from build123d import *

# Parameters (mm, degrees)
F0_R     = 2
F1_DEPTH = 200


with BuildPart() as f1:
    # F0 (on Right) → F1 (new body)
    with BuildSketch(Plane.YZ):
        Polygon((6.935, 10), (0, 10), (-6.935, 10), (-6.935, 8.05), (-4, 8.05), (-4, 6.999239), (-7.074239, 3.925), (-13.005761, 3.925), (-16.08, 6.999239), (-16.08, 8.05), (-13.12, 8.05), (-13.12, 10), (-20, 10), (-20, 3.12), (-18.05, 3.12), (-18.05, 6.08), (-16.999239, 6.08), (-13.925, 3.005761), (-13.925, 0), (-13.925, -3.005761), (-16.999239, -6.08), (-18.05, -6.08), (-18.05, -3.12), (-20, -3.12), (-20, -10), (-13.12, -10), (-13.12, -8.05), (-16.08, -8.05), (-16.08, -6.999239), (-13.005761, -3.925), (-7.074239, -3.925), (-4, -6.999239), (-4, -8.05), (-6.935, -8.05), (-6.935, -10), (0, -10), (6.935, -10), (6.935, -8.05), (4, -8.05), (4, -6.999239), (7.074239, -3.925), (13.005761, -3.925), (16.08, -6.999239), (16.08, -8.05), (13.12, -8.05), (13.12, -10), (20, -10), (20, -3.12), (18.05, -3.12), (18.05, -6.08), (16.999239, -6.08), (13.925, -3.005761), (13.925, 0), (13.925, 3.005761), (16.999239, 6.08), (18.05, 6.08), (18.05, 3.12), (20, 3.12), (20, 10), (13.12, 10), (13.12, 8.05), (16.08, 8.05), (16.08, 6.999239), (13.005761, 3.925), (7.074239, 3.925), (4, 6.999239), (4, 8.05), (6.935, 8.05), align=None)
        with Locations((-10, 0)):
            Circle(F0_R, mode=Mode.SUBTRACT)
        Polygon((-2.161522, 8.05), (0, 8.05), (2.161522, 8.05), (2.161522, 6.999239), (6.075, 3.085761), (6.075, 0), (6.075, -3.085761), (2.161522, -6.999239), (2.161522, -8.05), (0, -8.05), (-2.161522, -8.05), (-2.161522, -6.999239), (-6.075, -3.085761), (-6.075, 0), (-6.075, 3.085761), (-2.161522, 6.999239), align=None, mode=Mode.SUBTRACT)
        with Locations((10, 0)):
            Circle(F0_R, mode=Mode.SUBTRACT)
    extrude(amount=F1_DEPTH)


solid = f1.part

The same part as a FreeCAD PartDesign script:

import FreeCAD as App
import Part
import Sketcher

doc = App.newDocument("Part")
params = doc.addObject("Spreadsheet::Sheet", "Params")
for row, (alias, value) in enumerate([
    ("sketch1_diameter", "4 mm"),
    ("sketch1_width", "13.87 mm"),
    ("sketch1_width2", "2.96 mm"),
    ("sketch1_width3", "6.88 mm"),
    ("sketch1_width4", "1.95 mm"),
    ("pad1_length", "200 mm"),
], start=1):
    params.set(f"A{row}", alias)
    params.set(f"B{row}", "=" + value)
    params.setAlias(f"B{row}", alias)

body = doc.addObject("PartDesign::Body", "Body")

sketch1 = body.newObject("Sketcher::SketchObject", "Sketch")
sketch1.AttachmentSupport = (doc.getObject("YZ_Plane"), [""])
sketch1.MapMode = "FlatFace"
sketch1.addGeometry([
    Part.LineSegment(App.Vector(6.9, 10, 0), App.Vector(-6.9, 10, 0)),
    Part.LineSegment(App.Vector(-6.9, 10, 0), App.Vector(-6.9, 8.1, 0)),
    Part.LineSegment(App.Vector(-6.9, 8.1, 0), App.Vector(-4, 8.1, 0)),
    Part.LineSegment(App.Vector(-4, 8.1, 0), App.Vector(-4, 7, 0)),
    Part.LineSegment(App.Vector(-4, 7, 0), App.Vector(-7.1, 3.9, 0)),
    Part.LineSegment(App.Vector(-7.1, 3.9, 0), App.Vector(-13, 3.9, 0)),
    Part.LineSegment(App.Vector(-13, 3.9, 0), App.Vector(-16.1, 7, 0)),
    Part.LineSegment(App.Vector(-16.1, 7, 0), App.Vector(-16.1, 8.1, 0)),
    Part.LineSegment(App.Vector(-16.1, 8.1, 0), App.Vector(-13.1, 8.1, 0)),
    Part.LineSegment(App.Vector(-13.1, 8.1, 0), App.Vector(-13.1, 10, 0)),
    Part.LineSegment(App.Vector(-13.1, 10, 0), App.Vector(-20, 10, 0)),
    Part.LineSegment(App.Vector(-20, 10, 0), App.Vector(-20, 3.1, 0)),
    Part.LineSegment(App.Vector(-20, 3.1, 0), App.Vector(-18.1, 3.1, 0)),
    Part.LineSegment(App.Vector(-18.1, 3.1, 0), App.Vector(-18.1, 6.1, 0)),
    Part.LineSegment(App.Vector(-18.1, 6.1, 0), App.Vector(-17, 6.1, 0)),
    Part.LineSegment(App.Vector(-17, 6.1, 0), App.Vector(-13.9, 3, 0)),
    Part.LineSegment(App.Vector(-13.9, 3, 0), App.Vector(-13.9, -3, 0)),
    Part.LineSegment(App.Vector(-13.9, -3, 0), App.Vector(-17, -6.1, 0)),
    Part.LineSegment(App.Vector(-17, -6.1, 0), App.Vector(-18.1, -6.1, 0)),
    Part.LineSegment(App.Vector(-18.1, -6.1, 0), App.Vector(-18.1, -3.1, 0)),
    Part.LineSegment(App.Vector(-18.1, -3.1, 0), App.Vector(-20, -3.1, 0)),
    Part.LineSegment(App.Vector(-20, -3.1, 0), App.Vector(-20, -10, 0)),
    Part.LineSegment(App.Vector(-20, -10, 0), App.Vector(-13.1, -10, 0)),
    Part.LineSegment(App.Vector(-13.1, -10, 0), App.Vector(-13.1, -8.1, 0)),
    Part.LineSegment(App.Vector(-13.1, -8.1, 0), App.Vector(-16.1, -8.1, 0)),
    Part.LineSegment(App.Vector(-16.1, -8.1, 0), App.Vector(-16.1, -7, 0)),
    Part.LineSegment(App.Vector(-16.1, -7, 0), App.Vector(-13, -3.9, 0)),
    Part.LineSegment(App.Vector(-13, -3.9, 0), App.Vector(-7.1, -3.9, 0)),
    Part.LineSegment(App.Vector(-7.1, -3.9, 0), App.Vector(-4, -7, 0)),
    Part.LineSegment(App.Vector(-4, -7, 0), App.Vector(-4, -8.1, 0)),
    Part.LineSegment(App.Vector(-4, -8.1, 0), App.Vector(-6.9, -8.1, 0)),
    Part.LineSegment(App.Vector(-6.9, -8.1, 0), App.Vector(-6.9, -10, 0)),
    Part.LineSegment(App.Vector(-6.9, -10, 0), App.Vector(6.9, -10, 0)),
    Part.LineSegment(App.Vector(6.9, -10, 0), App.Vector(6.9, -8.1, 0)),
    Part.LineSegment(App.Vector(6.9, -8.1, 0), App.Vector(4, -8.1, 0)),
    Part.LineSegment(App.Vector(4, -8.1, 0), App.Vector(4, -7, 0)),
    Part.LineSegment(App.Vector(4, -7, 0), App.Vector(7.1, -3.9, 0)),
    Part.LineSegment(App.Vector(7.1, -3.9, 0), App.Vector(13, -3.9, 0)),
    Part.LineSegment(App.Vector(13, -3.9, 0), App.Vector(16.1, -7, 0)),
    Part.LineSegment(App.Vector(16.1, -7, 0), App.Vector(16.1, -8.1, 0)),
    Part.LineSegment(App.Vector(16.1, -8.1, 0), App.Vector(13.1, -8.1, 0)),
    Part.LineSegment(App.Vector(13.1, -8.1, 0), App.Vector(13.1, -10, 0)),
    Part.LineSegment(App.Vector(13.1, -10, 0), App.Vector(20, -10, 0)),
    Part.LineSegment(App.Vector(20, -10, 0), App.Vector(20, -3.1, 0)),
    Part.LineSegment(App.Vector(20, -3.1, 0), App.Vector(18.1, -3.1, 0)),
    Part.LineSegment(App.Vector(18.1, -3.1, 0), App.Vector(18.1, -6.1, 0)),
    Part.LineSegment(App.Vector(18.1, -6.1, 0), App.Vector(17, -6.1, 0)),
    Part.LineSegment(App.Vector(17, -6.1, 0), App.Vector(13.9, -3, 0)),
    Part.LineSegment(App.Vector(13.9, -3, 0), App.Vector(13.9, 3, 0)),
    Part.LineSegment(App.Vector(13.9, 3, 0), App.Vector(17, 6.1, 0)),
    Part.LineSegment(App.Vector(17, 6.1, 0), App.Vector(18.1, 6.1, 0)),
    Part.LineSegment(App.Vector(18.1, 6.1, 0), App.Vector(18.1, 3.1, 0)),
    Part.LineSegment(App.Vector(18.1, 3.1, 0), App.Vector(20, 3.1, 0)),
    Part.LineSegment(App.Vector(20, 3.1, 0), App.Vector(20, 10, 0)),
    Part.LineSegment(App.Vector(20, 10, 0), App.Vector(13.1, 10, 0)),
    Part.LineSegment(App.Vector(13.1, 10, 0), App.Vector(13.1, 8.1, 0)),
    Part.LineSegment(App.Vector(13.1, 8.1, 0), App.Vector(16.1, 8.1, 0)),
    Part.LineSegment(App.Vector(16.1, 8.1, 0), App.Vector(16.1, 7, 0)),
    Part.LineSegment(App.Vector(16.1, 7, 0), App.Vector(13, 3.9, 0)),
    Part.LineSegment(App.Vector(13, 3.9, 0), App.Vector(7.1, 3.9, 0)),
    Part.LineSegment(App.Vector(7.1, 3.9, 0), App.Vector(4, 7, 0)),
    Part.LineSegment(App.Vector(4, 7, 0), App.Vector(4, 8.1, 0)),
    Part.LineSegment(App.Vector(4, 8.1, 0), App.Vector(6.9, 8.1, 0)),
    Part.LineSegment(App.Vector(6.9, 8.1, 0), App.Vector(6.9, 10, 0)),
    Part.Circle(App.Vector(-10, 0, 0), App.Vector(0, 0, 1), 2),
    Part.LineSegment(App.Vector(-2.2, 7, 0), App.Vector(-2.2, 8.1, 0)),
    Part.LineSegment(App.Vector(-2.2, 8.1, 0), App.Vector(2.2, 8.1, 0)),
    Part.LineSegment(App.Vector(2.2, 8.1, 0), App.Vector(2.2, 7, 0)),
    Part.LineSegment(App.Vector(2.2, 7, 0), App.Vector(6.1, 3.1, 0)),
    Part.LineSegment(App.Vector(6.1, 3.1, 0), App.Vector(6.1, -3.1, 0)),
    Part.LineSegment(App.Vector(6.1, -3.1, 0), App.Vector(2.2, -7, 0)),
    Part.LineSegment(App.Vector(2.2, -7, 0), App.Vector(2.2, -8.1, 0)),
    Part.LineSegment(App.Vector(2.2, -8.1, 0), App.Vector(-2.2, -8.1, 0)),
    Part.LineSegment(App.Vector(-2.2, -8.1, 0), App.Vector(-2.2, -7, 0)),
    Part.LineSegment(App.Vector(-2.2, -7, 0), App.Vector(-6.1, -3.1, 0)),
    Part.LineSegment(App.Vector(-6.1, -3.1, 0), App.Vector(-6.1, 3.1, 0)),
    Part.LineSegment(App.Vector(-6.1, 3.1, 0), App.Vector(-2.2, 7, 0)),
    Part.Circle(App.Vector(10, 0, 0), App.Vector(0, 0, 1), 2),
], False)
sketch1.addConstraint([
    Sketcher.Constraint("Coincident", 0, 2, 1, 1),
    Sketcher.Constraint("Coincident", 1, 2, 2, 1),
    Sketcher.Constraint("Coincident", 2, 2, 3, 1),
    Sketcher.Constraint("Coincident", 3, 2, 4, 1),
    Sketcher.Constraint("Coincident", 4, 2, 5, 1),
    Sketcher.Constraint("Coincident", 5, 2, 6, 1),
    Sketcher.Constraint("Coincident", 6, 2, 7, 1),
    Sketcher.Constraint("Coincident", 7, 2, 8, 1),
    Sketcher.Constraint("Coincident", 8, 2, 9, 1),
    Sketcher.Constraint("Coincident", 9, 2, 10, 1),
    Sketcher.Constraint("Coincident", 10, 2, 11, 1),
    Sketcher.Constraint("Coincident", 11, 2, 12, 1),
    Sketcher.Constraint("Coincident", 12, 2, 13, 1),
    Sketcher.Constraint("Coincident", 13, 2, 14, 1),
    Sketcher.Constraint("Coincident", 14, 2, 15, 1),
    Sketcher.Constraint("Coincident", 15, 2, 16, 1),
    Sketcher.Constraint("Coincident", 16, 2, 17, 1),
    Sketcher.Constraint("Coincident", 17, 2, 18, 1),
    Sketcher.Constraint("Coincident", 18, 2, 19, 1),
    Sketcher.Constraint("Coincident", 19, 2, 20, 1),
    Sketcher.Constraint("Coincident", 20, 2, 21, 1),
    Sketcher.Constraint("Coincident", 21, 2, 22, 1),
    Sketcher.Constraint("Coincident", 22, 2, 23, 1),
    Sketcher.Constraint("Coincident", 23, 2, 24, 1),
    Sketcher.Constraint("Coincident", 24, 2, 25, 1),
    Sketcher.Constraint("Coincident", 25, 2, 26, 1),
    Sketcher.Constraint("Coincident", 26, 2, 27, 1),
    Sketcher.Constraint("Coincident", 27, 2, 28, 1),
    Sketcher.Constraint("Coincident", 28, 2, 29, 1),
    Sketcher.Constraint("Coincident", 29, 2, 30, 1),
    Sketcher.Constraint("Coincident", 30, 2, 31, 1),
    Sketcher.Constraint("Coincident", 31, 2, 32, 1),
    Sketcher.Constraint("Coincident", 32, 2, 33, 1),
    Sketcher.Constraint("Coincident", 33, 2, 34, 1),
    Sketcher.Constraint("Coincident", 34, 2, 35, 1),
    Sketcher.Constraint("Coincident", 35, 2, 36, 1),
    Sketcher.Constraint("Coincident", 36, 2, 37, 1),
    Sketcher.Constraint("Coincident", 37, 2, 38, 1),
    Sketcher.Constraint("Coincident", 38, 2, 39, 1),
    Sketcher.Constraint("Coincident", 39, 2, 40, 1),
    Sketcher.Constraint("Coincident", 40, 2, 41, 1),
    Sketcher.Constraint("Coincident", 41, 2, 42, 1),
    Sketcher.Constraint("Coincident", 42, 2, 43, 1),
    Sketcher.Constraint("Coincident", 43, 2, 44, 1),
    Sketcher.Constraint("Coincident", 44, 2, 45, 1),
    Sketcher.Constraint("Coincident", 45, 2, 46, 1),
    Sketcher.Constraint("Coincident", 46, 2, 47, 1),
    Sketcher.Constraint("Coincident", 47, 2, 48, 1),
    Sketcher.Constraint("Coincident", 48, 2, 49, 1),
    Sketcher.Constraint("Coincident", 49, 2, 50, 1),
    Sketcher.Constraint("Coincident", 50, 2, 51, 1),
    Sketcher.Constraint("Coincident", 51, 2, 52, 1),
    Sketcher.Constraint("Coincident", 52, 2, 53, 1),
    Sketcher.Constraint("Coincident", 53, 2, 54, 1),
    Sketcher.Constraint("Coincident", 54, 2, 55, 1),
    Sketcher.Constraint("Coincident", 55, 2, 56, 1),
    Sketcher.Constraint("Coincident", 56, 2, 57, 1),
    Sketcher.Constraint("Coincident", 57, 2, 58, 1),
    Sketcher.Constraint("Coincident", 58, 2, 59, 1),
    Sketcher.Constraint("Coincident", 59, 2, 60, 1),
    Sketcher.Constraint("Coincident", 60, 2, 61, 1),
    Sketcher.Constraint("Coincident", 61, 2, 62, 1),
    Sketcher.Constraint("Coincident", 62, 2, 63, 1),
    Sketcher.Constraint("Coincident", 63, 2, 0, 1),
    Sketcher.Constraint("Coincident", 65, 2, 66, 1),
    Sketcher.Constraint("Coincident", 66, 2, 67, 1),
    Sketcher.Constraint("Coincident", 67, 2, 68, 1),
    Sketcher.Constraint("Coincident", 68, 2, 69, 1),
    Sketcher.Constraint("Coincident", 69, 2, 70, 1),
    Sketcher.Constraint("Coincident", 70, 2, 71, 1),
    Sketcher.Constraint("Coincident", 71, 2, 72, 1),
    Sketcher.Constraint("Coincident", 72, 2, 73, 1),
    Sketcher.Constraint("Coincident", 73, 2, 74, 1),
    Sketcher.Constraint("Coincident", 74, 2, 75, 1),
    Sketcher.Constraint("Coincident", 75, 2, 76, 1),
    Sketcher.Constraint("Coincident", 76, 2, 65, 1),
    Sketcher.Constraint("Horizontal", 0),
    Sketcher.Constraint("Vertical", 1),
    Sketcher.Constraint("Horizontal", 2),
    Sketcher.Constraint("Vertical", 3),
    Sketcher.Constraint("Horizontal", 5),
    Sketcher.Constraint("Vertical", 7),
    Sketcher.Constraint("Horizontal", 8),
    Sketcher.Constraint("Vertical", 9),
    Sketcher.Constraint("Horizontal", 10),
    Sketcher.Constraint("Vertical", 11),
    Sketcher.Constraint("Horizontal", 12),
    Sketcher.Constraint("Vertical", 13),
    Sketcher.Constraint("Horizontal", 14),
    Sketcher.Constraint("Vertical", 16),
    Sketcher.Constraint("Horizontal", 18),
    Sketcher.Constraint("Vertical", 19),
    Sketcher.Constraint("Horizontal", 20),
    Sketcher.Constraint("Vertical", 21),
    Sketcher.Constraint("Horizontal", 22),
    Sketcher.Constraint("Vertical", 23),
    Sketcher.Constraint("Horizontal", 24),
    Sketcher.Constraint("Vertical", 25),
    Sketcher.Constraint("Horizontal", 27),
    Sketcher.Constraint("Vertical", 29),
    Sketcher.Constraint("Horizontal", 30),
    Sketcher.Constraint("Vertical", 31),
    Sketcher.Constraint("Horizontal", 32),
    Sketcher.Constraint("Vertical", 33),
    Sketcher.Constraint("Horizontal", 34),
    Sketcher.Constraint("Vertical", 35),
    Sketcher.Constraint("Horizontal", 37),
    Sketcher.Constraint("Vertical", 39),
    Sketcher.Constraint("Horizontal", 40),
    Sketcher.Constraint("Vertical", 41),
    Sketcher.Constraint("Horizontal", 42),
    Sketcher.Constraint("Vertical", 43),
    Sketcher.Constraint("Horizontal", 44),
    Sketcher.Constraint("Vertical", 45),
    Sketcher.Constraint("Horizontal", 46),
    Sketcher.Constraint("Vertical", 48),
    Sketcher.Constraint("Horizontal", 50),
    Sketcher.Constraint("Vertical", 51),
    Sketcher.Constraint("Horizontal", 52),
    Sketcher.Constraint("Vertical", 53),
    Sketcher.Constraint("Horizontal", 54),
    Sketcher.Constraint("Vertical", 55),
    Sketcher.Constraint("Horizontal", 56),
    Sketcher.Constraint("Vertical", 57),
    Sketcher.Constraint("Horizontal", 59),
    Sketcher.Constraint("Vertical", 61),
    Sketcher.Constraint("Horizontal", 62),
    Sketcher.Constraint("Vertical", 63),
    Sketcher.Constraint("Vertical", 65),
    Sketcher.Constraint("Horizontal", 66),
    Sketcher.Constraint("Vertical", 67),
    Sketcher.Constraint("Vertical", 69),
    Sketcher.Constraint("Vertical", 71),
    Sketcher.Constraint("Horizontal", 72),
    Sketcher.Constraint("Vertical", 73),
    Sketcher.Constraint("Vertical", 75),
    Sketcher.Constraint("Equal", 64, 77),
    Sketcher.Constraint("Symmetric", 64, 3, 77, 3, -1, 1),
    Sketcher.Constraint("Symmetric", 0, 2, 32, 2, -1, 1),
    Sketcher.Constraint("Symmetric", 2, 2, 34, 2, -1, 1),
    Sketcher.Constraint("Symmetric", 4, 2, 36, 2, -1, 1),
    Sketcher.Constraint("Symmetric", 6, 2, 38, 2, -1, 1),
    Sketcher.Constraint("Symmetric", 8, 2, 40, 2, -1, 1),
    Sketcher.Constraint("Symmetric", 10, 2, 42, 2, -1, 1),
    Sketcher.Constraint("Symmetric", 12, 2, 44, 2, -1, 1),
    Sketcher.Constraint("Symmetric", 14, 2, 46, 2, -1, 1),
    Sketcher.Constraint("Symmetric", 15, 2, 47, 2, -1, 1),
    Sketcher.Constraint("Symmetric", 17, 2, 49, 2, -1, 1),
    Sketcher.Constraint("Symmetric", 19, 2, 51, 2, -1, 1),
    Sketcher.Constraint("Symmetric", 21, 2, 53, 2, -1, 1),
    Sketcher.Constraint("Symmetric", 23, 2, 55, 2, -1, 1),
    Sketcher.Constraint("Symmetric", 25, 2, 57, 2, -1, 1),
    Sketcher.Constraint("Symmetric", 26, 2, 58, 2, -1, 1),
    Sketcher.Constraint("Symmetric", 28, 2, 60, 2, -1, 1),
    Sketcher.Constraint("Symmetric", 30, 2, 62, 2, -1, 1),
    Sketcher.Constraint("Symmetric", 65, 2, 71, 2, -1, 1),
    Sketcher.Constraint("Symmetric", 67, 2, 73, 2, -1, 1),
    Sketcher.Constraint("Symmetric", 68, 2, 74, 2, -1, 1),
    Sketcher.Constraint("Symmetric", 30, 2, 33, 2, -2),
    Sketcher.Constraint("Symmetric", 28, 2, 35, 2, -2),
    Sketcher.Constraint("Symmetric", 27, 2, 36, 2, -2),
    Sketcher.Constraint("Symmetric", 25, 2, 38, 2, -2),
    Sketcher.Constraint("Symmetric", 23, 2, 40, 2, -2),
    Sketcher.Constraint("Symmetric", 21, 2, 42, 2, -2),
    Sketcher.Constraint("Symmetric", 19, 2, 44, 2, -2),
    Sketcher.Constraint("Symmetric", 17, 2, 46, 2, -2),
    Sketcher.Constraint("Symmetric", 70, 2, 73, 2, -2),
    Sketcher.Constraint("PointOnObject", 64, 3, -1),
    Sketcher.Constraint("Perpendicular", 4, 6),
    Sketcher.Constraint("Parallel", 6, 15),
    Sketcher.Constraint("Perpendicular", 15, 17),
    Sketcher.Constraint("Parallel", 17, 26),
    Sketcher.Constraint("Perpendicular", 26, 28),
    Sketcher.Constraint("Perpendicular", 28, 36),
    Sketcher.Constraint("Perpendicular", 36, 38),
    Sketcher.Constraint("Perpendicular", 47, 49),
    Sketcher.Constraint("Perpendicular", 58, 60),
    Sketcher.Constraint("Parallel", 60, 68),
    Sketcher.Constraint("Perpendicular", 68, 70),
    Sketcher.Constraint("Perpendicular", 74, 76),
    Sketcher.Constraint("Horizontal", 3, 2, 6, 2),
    Sketcher.Constraint("Horizontal", 2, 2, 7, 2),
    Sketcher.Constraint("Horizontal", 0, 2, 9, 2),
    Sketcher.Constraint("Horizontal", 62, 2, 65, 2),
    Sketcher.Constraint("Horizontal", 60, 2, 67, 2),
    Sketcher.Constraint("Horizontal", 68, 2, 75, 2),
    Sketcher.Constraint("Equal", 52, 1),
    Sketcher.Constraint("Equal", 50, 3),
    Sketcher.Constraint("Equal", 54, 11),
    Sketcher.Constraint("Equal", 56, 13),
    Sketcher.Constraint("Equal", 6, 15),
    Sketcher.Constraint("Diameter", 64, 4.0),
    Sketcher.Constraint("DistanceX", 64, 3, -1, 1, 10.0),
    Sketcher.Constraint("DistanceY", -1, 1, 0, 2, 10.0),
    Sketcher.Constraint("DistanceX", 2, 2, -1, 1, 4.0),
    Sketcher.Constraint("DistanceX", 10, 2, -1, 1, 20.0),
    Sketcher.Constraint("DistanceX", 0, 2, 0, 1, 13.87),
    Sketcher.Constraint("DistanceX", 8, 1, 8, 2, 2.96),
    Sketcher.Constraint("DistanceX", 10, 2, 10, 1, 6.88),
    Sketcher.Constraint("DistanceX", 12, 1, 12, 2, 1.95),
    Sketcher.Constraint("DistanceY", -1, 1, 4, 2, 3.925),
    Sketcher.Constraint("DistanceX", -1, 1, 68, 2, 6.075),
    Sketcher.Constraint("DistanceX", 5, 2, 5, 1, 5.931522),
    Sketcher.Constraint("DistanceX", 66, 1, 66, 2, 4.323044),
])
sketch1.setExpression("Constraints[191]", "Params.sketch1_diameter")
sketch1.setExpression("Constraints[196]", "Params.sketch1_width")
sketch1.setExpression("Constraints[197]", "Params.sketch1_width2")
sketch1.setExpression("Constraints[198]", "Params.sketch1_width3")
sketch1.setExpression("Constraints[199]", "Params.sketch1_width4")
pad1 = body.newObject("PartDesign::Pad", "Pad")
pad1.Profile = sketch1
pad1.setExpression("Length", "Params.pad1_length")

doc.recompute()
